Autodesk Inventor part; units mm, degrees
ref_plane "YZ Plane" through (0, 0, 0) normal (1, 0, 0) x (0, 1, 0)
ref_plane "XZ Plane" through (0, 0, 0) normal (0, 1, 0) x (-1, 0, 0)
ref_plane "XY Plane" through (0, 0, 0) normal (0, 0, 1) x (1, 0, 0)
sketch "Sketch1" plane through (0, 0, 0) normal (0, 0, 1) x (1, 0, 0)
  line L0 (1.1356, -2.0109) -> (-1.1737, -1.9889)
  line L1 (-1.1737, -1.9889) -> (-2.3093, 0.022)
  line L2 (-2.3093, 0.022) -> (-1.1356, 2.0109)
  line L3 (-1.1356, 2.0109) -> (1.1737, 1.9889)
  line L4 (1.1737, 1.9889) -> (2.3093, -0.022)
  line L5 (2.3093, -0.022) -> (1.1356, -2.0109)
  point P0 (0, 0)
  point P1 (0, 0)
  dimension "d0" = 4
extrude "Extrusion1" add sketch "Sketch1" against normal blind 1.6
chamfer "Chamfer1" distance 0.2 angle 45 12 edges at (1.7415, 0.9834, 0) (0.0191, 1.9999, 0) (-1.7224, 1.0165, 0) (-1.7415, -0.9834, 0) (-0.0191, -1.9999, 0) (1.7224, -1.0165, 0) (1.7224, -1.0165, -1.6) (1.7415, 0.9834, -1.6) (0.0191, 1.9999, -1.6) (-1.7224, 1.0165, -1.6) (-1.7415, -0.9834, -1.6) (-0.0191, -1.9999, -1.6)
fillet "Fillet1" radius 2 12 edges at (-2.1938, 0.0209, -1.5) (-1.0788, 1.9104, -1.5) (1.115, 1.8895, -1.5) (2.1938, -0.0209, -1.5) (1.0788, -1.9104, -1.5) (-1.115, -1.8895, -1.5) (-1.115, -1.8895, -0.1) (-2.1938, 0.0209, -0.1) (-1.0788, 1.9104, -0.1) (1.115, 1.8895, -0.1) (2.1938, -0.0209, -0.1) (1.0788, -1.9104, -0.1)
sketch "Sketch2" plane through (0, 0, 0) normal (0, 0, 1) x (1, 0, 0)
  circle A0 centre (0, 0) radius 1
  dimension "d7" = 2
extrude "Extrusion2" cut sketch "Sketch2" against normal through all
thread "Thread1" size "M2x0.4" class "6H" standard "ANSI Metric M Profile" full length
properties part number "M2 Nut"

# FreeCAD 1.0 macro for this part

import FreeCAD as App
import Part
import Sketcher
Q = App.Units.Quantity


def edges_at(feature, points):
    """Names of the edges that pass closest to the given points."""
    edges = feature.Shape.Edges
    near = lambda p: min(range(len(edges)), key=lambda i: edges[i].distToShape(Part.Vertex(*p))[0])
    return sorted({f"Edge{near(p) + 1}" for p in points})


def add_polygon(sketch, points):
    """Adds a closed chain of lines whose ends are joined by coincident constraints."""
    first, n = sketch.GeometryCount, len(points)
    for a, b in zip(points, points[1:] + points[:1]):
        sketch.addGeometry(Part.LineSegment(App.Vector(*a, 0), App.Vector(*b, 0)), False)
    for i in range(n):
        sketch.addConstraint(Sketcher.Constraint("Coincident", first + i, 2, first + (i + 1) % n, 1))

doc = App.newDocument("Part")
body = doc.addObject("PartDesign::Body", "Body")

# Sketch on XY plane
sketch1 = body.newObject("Sketcher::SketchObject", "Sketch")
sketch1.AttachmentSupport = (doc.getObject("XY_Plane"), [""])
sketch1.MapMode = "FlatFace"
add_polygon(sketch1, [(-1.1737, -1.9889), (1.1356, -2.0109), (2.3093, -0.022), (1.1737, 1.9889), (-1.1356, 2.0109), (-2.3093, 0.022)])  # lines 0-5
sketch1.addConstraint(Sketcher.Constraint("DistanceY", 0, 2, 2, 2, Q("3.9998 mm")))
sketch1.addConstraint(Sketcher.Constraint("DistanceY", 5, 2, 3, 2, Q("3.9998 mm")))
sketch1.addConstraint(Sketcher.Constraint("DistanceY", 0, 2, -1, 1, Q("2.011 mm")))
sketch1.addConstraint(Sketcher.Constraint("DistanceY", 1, 2, -1, 1, Q("0.022 mm")))
sketch1.addConstraint(Sketcher.Constraint("DistanceY", -1, 1, 3, 2, Q("2.011 mm")))
sketch1.addConstraint(Sketcher.Constraint("DistanceY", -1, 1, 4, 2, Q("0.022 mm")))
sketch1.addConstraint(Sketcher.Constraint("DistanceX", 0, 2, 2, 2, Q("0.038 mm")))
sketch1.addConstraint(Sketcher.Constraint("DistanceX", 3, 2, 1, 2, Q("3.445 mm")))
sketch1.addConstraint(Sketcher.Constraint("DistanceX", 4, 2, 2, 2, Q("3.483 mm")))
sketch1.addConstraint(Sketcher.Constraint("DistanceX", 5, 2, 3, 2, Q("0.038 mm")))
sketch1.addConstraint(Sketcher.Constraint("Distance", 0, Q("2.3094 mm")))
sketch1.addConstraint(Sketcher.Constraint("DistanceX", -1, 1, 0, 2, Q("1.1356 mm")))
pad1 = body.newObject("PartDesign::Pad", "Pad")
pad1.Profile = sketch1
pad1.Length = 1.6
pad1.Reversed = True
doc.recompute()

chamfer = body.newObject("PartDesign::Chamfer", "Chamfer")
chamfer.Base = (pad1, edges_at(pad1, [
    (1.742, 0.983, 0),
    (0.019, 2, 0),
    (-1.722, 1.016, 0),
    (-1.742, -0.983, 0),
    (-0.019, -2, 0),
    (1.722, -1.016, 0),
    (1.722, -1.016, -1.6),
    (1.742, 0.983, -1.6),
    (0.019, 2, -1.6),
    (-1.722, 1.016, -1.6),
    (-1.742, -0.983, -1.6),
    (-0.019, -2, -1.6),
]))
chamfer.Size = 0.2
doc.recompute()

fillet = body.newObject("PartDesign::Fillet", "Fillet")
fillet.Base = (chamfer, edges_at(chamfer, [
    (-2.194, 0.021, -1.5),
    (-1.079, 1.91, -1.5),
    (1.115, 1.889, -1.5),
    (2.194, -0.021, -1.5),
    (1.079, -1.91, -1.5),
    (-1.115, -1.889, -1.5),
    (-1.115, -1.889, -0.1),
    (-2.194, 0.021, -0.1),
    (-1.079, 1.91, -0.1),
    (1.115, 1.889, -0.1),
    (2.194, -0.021, -0.1),
    (1.079, -1.91, -0.1),
]))
fillet.Radius = 2

# Sketch on XY plane
sketch2 = body.newObject("Sketcher::SketchObject", "Sketch001")
sketch2.AttachmentSupport = (doc.getObject("XY_Plane"), [""])
sketch2.MapMode = "FlatFace"
sketch2.addGeometry(Part.Circle(App.Vector(0, 0, 0), App.Vector(0, 0, 1), 1), False)
sketch2.addConstraint(Sketcher.Constraint("Coincident", 0, 3, -1, 1))
sketch2.addConstraint(Sketcher.Constraint("Diameter", 0, Q("2 mm")))
pocket1 = body.newObject("PartDesign::Pocket", "Pocket")
pocket1.Profile = sketch2
pocket1.Type = "ThroughAll"

doc.recompute()
